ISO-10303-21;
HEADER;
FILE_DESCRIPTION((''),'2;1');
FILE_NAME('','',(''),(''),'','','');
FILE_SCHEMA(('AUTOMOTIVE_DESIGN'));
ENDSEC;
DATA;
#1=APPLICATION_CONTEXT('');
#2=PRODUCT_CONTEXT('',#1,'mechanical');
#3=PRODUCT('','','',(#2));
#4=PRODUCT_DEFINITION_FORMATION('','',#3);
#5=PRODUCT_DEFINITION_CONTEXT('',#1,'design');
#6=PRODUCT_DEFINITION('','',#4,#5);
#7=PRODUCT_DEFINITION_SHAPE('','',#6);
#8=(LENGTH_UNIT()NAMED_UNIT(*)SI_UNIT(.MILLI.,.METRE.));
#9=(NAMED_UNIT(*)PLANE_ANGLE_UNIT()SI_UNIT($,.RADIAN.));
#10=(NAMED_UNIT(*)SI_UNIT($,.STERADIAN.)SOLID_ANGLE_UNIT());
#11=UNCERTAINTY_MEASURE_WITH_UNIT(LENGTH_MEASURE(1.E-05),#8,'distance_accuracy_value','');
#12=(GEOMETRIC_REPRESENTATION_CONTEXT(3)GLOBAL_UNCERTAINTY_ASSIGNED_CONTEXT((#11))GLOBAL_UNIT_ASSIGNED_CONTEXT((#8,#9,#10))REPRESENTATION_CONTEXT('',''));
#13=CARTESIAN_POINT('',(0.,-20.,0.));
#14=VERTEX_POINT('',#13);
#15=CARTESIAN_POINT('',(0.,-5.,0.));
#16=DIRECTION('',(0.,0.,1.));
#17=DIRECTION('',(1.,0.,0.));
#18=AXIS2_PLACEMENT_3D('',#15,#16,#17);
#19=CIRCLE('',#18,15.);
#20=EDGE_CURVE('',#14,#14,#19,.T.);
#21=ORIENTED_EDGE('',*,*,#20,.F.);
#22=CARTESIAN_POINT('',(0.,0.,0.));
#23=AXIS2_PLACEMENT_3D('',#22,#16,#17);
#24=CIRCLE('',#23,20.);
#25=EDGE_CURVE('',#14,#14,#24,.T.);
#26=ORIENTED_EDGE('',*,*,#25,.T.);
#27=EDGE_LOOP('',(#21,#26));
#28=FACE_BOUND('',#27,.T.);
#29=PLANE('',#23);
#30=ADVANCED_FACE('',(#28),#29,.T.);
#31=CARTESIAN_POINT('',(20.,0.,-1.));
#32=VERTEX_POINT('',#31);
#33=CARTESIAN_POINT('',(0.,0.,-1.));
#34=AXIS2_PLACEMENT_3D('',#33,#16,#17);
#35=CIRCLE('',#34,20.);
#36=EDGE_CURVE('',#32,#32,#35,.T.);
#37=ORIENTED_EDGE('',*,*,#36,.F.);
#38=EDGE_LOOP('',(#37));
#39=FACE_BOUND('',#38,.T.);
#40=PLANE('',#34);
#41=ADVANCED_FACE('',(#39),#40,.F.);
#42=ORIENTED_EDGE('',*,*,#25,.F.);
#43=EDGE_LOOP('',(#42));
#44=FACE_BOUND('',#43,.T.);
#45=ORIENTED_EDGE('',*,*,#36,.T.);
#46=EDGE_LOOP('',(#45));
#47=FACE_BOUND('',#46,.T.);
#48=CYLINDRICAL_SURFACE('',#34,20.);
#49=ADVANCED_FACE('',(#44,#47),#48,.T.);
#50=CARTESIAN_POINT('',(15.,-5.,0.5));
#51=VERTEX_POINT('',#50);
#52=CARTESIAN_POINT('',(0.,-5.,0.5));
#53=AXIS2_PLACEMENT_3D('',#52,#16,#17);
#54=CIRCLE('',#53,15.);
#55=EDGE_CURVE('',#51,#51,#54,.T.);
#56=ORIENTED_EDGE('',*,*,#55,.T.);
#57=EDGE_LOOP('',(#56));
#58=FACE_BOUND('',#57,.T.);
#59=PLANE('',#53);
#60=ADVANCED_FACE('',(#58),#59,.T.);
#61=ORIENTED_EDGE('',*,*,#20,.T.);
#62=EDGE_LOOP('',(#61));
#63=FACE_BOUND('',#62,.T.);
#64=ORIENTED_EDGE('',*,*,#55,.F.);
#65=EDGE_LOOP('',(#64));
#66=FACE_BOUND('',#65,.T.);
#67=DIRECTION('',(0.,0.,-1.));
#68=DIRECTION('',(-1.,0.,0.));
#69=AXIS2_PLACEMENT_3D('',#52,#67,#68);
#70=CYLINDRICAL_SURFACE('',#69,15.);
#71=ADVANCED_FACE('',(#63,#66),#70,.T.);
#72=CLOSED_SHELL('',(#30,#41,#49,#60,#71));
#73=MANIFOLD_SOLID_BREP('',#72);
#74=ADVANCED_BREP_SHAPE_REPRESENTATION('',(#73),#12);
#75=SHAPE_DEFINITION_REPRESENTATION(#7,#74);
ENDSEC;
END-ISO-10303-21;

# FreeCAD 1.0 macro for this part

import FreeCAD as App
import Part
import Sketcher
Q = App.Units.Quantity

doc = App.newDocument("Part")
body = doc.addObject("PartDesign::Body", "Body")

# Sketch on XY plane
sketch1 = body.newObject("Sketcher::SketchObject", "Sketch")
sketch1.AttachmentSupport = (doc.getObject("XY_Plane"), [""])
sketch1.MapMode = "FlatFace"
sketch1.addGeometry(Part.Circle(App.Vector(0, 0, 0), App.Vector(0, 0, 1), 20), False)
sketch1.addConstraint([
    Sketcher.Constraint("Coincident", 0, 3, -1, 1),
    Sketcher.Constraint("Diameter", 0, Q("40 mm")),
])
pad1 = body.newObject("PartDesign::Pad", "Pad")
pad1.Profile = sketch1
pad1.Length = 1
pad1.Reversed = True

# Sketch on XY plane
sketch2 = body.newObject("Sketcher::SketchObject", "Sketch001")
sketch2.AttachmentSupport = (doc.getObject("XY_Plane"), [""])
sketch2.MapMode = "FlatFace"
sketch2.addGeometry(Part.Circle(App.Vector(0, -5, 0), App.Vector(0, 0, 1), 15), False)
sketch2.addConstraint([
    Sketcher.Constraint("PointOnObject", 0, 3, -2),
    Sketcher.Constraint("Diameter", 0, Q("30 mm")),
    Sketcher.Constraint("DistanceY", 0, 3, -1, 1, Q("5 mm")),
])
pad2 = body.newObject("PartDesign::Pad", "Pad001")
pad2.Profile = sketch2
pad2.Length = 0.5

doc.recompute()
